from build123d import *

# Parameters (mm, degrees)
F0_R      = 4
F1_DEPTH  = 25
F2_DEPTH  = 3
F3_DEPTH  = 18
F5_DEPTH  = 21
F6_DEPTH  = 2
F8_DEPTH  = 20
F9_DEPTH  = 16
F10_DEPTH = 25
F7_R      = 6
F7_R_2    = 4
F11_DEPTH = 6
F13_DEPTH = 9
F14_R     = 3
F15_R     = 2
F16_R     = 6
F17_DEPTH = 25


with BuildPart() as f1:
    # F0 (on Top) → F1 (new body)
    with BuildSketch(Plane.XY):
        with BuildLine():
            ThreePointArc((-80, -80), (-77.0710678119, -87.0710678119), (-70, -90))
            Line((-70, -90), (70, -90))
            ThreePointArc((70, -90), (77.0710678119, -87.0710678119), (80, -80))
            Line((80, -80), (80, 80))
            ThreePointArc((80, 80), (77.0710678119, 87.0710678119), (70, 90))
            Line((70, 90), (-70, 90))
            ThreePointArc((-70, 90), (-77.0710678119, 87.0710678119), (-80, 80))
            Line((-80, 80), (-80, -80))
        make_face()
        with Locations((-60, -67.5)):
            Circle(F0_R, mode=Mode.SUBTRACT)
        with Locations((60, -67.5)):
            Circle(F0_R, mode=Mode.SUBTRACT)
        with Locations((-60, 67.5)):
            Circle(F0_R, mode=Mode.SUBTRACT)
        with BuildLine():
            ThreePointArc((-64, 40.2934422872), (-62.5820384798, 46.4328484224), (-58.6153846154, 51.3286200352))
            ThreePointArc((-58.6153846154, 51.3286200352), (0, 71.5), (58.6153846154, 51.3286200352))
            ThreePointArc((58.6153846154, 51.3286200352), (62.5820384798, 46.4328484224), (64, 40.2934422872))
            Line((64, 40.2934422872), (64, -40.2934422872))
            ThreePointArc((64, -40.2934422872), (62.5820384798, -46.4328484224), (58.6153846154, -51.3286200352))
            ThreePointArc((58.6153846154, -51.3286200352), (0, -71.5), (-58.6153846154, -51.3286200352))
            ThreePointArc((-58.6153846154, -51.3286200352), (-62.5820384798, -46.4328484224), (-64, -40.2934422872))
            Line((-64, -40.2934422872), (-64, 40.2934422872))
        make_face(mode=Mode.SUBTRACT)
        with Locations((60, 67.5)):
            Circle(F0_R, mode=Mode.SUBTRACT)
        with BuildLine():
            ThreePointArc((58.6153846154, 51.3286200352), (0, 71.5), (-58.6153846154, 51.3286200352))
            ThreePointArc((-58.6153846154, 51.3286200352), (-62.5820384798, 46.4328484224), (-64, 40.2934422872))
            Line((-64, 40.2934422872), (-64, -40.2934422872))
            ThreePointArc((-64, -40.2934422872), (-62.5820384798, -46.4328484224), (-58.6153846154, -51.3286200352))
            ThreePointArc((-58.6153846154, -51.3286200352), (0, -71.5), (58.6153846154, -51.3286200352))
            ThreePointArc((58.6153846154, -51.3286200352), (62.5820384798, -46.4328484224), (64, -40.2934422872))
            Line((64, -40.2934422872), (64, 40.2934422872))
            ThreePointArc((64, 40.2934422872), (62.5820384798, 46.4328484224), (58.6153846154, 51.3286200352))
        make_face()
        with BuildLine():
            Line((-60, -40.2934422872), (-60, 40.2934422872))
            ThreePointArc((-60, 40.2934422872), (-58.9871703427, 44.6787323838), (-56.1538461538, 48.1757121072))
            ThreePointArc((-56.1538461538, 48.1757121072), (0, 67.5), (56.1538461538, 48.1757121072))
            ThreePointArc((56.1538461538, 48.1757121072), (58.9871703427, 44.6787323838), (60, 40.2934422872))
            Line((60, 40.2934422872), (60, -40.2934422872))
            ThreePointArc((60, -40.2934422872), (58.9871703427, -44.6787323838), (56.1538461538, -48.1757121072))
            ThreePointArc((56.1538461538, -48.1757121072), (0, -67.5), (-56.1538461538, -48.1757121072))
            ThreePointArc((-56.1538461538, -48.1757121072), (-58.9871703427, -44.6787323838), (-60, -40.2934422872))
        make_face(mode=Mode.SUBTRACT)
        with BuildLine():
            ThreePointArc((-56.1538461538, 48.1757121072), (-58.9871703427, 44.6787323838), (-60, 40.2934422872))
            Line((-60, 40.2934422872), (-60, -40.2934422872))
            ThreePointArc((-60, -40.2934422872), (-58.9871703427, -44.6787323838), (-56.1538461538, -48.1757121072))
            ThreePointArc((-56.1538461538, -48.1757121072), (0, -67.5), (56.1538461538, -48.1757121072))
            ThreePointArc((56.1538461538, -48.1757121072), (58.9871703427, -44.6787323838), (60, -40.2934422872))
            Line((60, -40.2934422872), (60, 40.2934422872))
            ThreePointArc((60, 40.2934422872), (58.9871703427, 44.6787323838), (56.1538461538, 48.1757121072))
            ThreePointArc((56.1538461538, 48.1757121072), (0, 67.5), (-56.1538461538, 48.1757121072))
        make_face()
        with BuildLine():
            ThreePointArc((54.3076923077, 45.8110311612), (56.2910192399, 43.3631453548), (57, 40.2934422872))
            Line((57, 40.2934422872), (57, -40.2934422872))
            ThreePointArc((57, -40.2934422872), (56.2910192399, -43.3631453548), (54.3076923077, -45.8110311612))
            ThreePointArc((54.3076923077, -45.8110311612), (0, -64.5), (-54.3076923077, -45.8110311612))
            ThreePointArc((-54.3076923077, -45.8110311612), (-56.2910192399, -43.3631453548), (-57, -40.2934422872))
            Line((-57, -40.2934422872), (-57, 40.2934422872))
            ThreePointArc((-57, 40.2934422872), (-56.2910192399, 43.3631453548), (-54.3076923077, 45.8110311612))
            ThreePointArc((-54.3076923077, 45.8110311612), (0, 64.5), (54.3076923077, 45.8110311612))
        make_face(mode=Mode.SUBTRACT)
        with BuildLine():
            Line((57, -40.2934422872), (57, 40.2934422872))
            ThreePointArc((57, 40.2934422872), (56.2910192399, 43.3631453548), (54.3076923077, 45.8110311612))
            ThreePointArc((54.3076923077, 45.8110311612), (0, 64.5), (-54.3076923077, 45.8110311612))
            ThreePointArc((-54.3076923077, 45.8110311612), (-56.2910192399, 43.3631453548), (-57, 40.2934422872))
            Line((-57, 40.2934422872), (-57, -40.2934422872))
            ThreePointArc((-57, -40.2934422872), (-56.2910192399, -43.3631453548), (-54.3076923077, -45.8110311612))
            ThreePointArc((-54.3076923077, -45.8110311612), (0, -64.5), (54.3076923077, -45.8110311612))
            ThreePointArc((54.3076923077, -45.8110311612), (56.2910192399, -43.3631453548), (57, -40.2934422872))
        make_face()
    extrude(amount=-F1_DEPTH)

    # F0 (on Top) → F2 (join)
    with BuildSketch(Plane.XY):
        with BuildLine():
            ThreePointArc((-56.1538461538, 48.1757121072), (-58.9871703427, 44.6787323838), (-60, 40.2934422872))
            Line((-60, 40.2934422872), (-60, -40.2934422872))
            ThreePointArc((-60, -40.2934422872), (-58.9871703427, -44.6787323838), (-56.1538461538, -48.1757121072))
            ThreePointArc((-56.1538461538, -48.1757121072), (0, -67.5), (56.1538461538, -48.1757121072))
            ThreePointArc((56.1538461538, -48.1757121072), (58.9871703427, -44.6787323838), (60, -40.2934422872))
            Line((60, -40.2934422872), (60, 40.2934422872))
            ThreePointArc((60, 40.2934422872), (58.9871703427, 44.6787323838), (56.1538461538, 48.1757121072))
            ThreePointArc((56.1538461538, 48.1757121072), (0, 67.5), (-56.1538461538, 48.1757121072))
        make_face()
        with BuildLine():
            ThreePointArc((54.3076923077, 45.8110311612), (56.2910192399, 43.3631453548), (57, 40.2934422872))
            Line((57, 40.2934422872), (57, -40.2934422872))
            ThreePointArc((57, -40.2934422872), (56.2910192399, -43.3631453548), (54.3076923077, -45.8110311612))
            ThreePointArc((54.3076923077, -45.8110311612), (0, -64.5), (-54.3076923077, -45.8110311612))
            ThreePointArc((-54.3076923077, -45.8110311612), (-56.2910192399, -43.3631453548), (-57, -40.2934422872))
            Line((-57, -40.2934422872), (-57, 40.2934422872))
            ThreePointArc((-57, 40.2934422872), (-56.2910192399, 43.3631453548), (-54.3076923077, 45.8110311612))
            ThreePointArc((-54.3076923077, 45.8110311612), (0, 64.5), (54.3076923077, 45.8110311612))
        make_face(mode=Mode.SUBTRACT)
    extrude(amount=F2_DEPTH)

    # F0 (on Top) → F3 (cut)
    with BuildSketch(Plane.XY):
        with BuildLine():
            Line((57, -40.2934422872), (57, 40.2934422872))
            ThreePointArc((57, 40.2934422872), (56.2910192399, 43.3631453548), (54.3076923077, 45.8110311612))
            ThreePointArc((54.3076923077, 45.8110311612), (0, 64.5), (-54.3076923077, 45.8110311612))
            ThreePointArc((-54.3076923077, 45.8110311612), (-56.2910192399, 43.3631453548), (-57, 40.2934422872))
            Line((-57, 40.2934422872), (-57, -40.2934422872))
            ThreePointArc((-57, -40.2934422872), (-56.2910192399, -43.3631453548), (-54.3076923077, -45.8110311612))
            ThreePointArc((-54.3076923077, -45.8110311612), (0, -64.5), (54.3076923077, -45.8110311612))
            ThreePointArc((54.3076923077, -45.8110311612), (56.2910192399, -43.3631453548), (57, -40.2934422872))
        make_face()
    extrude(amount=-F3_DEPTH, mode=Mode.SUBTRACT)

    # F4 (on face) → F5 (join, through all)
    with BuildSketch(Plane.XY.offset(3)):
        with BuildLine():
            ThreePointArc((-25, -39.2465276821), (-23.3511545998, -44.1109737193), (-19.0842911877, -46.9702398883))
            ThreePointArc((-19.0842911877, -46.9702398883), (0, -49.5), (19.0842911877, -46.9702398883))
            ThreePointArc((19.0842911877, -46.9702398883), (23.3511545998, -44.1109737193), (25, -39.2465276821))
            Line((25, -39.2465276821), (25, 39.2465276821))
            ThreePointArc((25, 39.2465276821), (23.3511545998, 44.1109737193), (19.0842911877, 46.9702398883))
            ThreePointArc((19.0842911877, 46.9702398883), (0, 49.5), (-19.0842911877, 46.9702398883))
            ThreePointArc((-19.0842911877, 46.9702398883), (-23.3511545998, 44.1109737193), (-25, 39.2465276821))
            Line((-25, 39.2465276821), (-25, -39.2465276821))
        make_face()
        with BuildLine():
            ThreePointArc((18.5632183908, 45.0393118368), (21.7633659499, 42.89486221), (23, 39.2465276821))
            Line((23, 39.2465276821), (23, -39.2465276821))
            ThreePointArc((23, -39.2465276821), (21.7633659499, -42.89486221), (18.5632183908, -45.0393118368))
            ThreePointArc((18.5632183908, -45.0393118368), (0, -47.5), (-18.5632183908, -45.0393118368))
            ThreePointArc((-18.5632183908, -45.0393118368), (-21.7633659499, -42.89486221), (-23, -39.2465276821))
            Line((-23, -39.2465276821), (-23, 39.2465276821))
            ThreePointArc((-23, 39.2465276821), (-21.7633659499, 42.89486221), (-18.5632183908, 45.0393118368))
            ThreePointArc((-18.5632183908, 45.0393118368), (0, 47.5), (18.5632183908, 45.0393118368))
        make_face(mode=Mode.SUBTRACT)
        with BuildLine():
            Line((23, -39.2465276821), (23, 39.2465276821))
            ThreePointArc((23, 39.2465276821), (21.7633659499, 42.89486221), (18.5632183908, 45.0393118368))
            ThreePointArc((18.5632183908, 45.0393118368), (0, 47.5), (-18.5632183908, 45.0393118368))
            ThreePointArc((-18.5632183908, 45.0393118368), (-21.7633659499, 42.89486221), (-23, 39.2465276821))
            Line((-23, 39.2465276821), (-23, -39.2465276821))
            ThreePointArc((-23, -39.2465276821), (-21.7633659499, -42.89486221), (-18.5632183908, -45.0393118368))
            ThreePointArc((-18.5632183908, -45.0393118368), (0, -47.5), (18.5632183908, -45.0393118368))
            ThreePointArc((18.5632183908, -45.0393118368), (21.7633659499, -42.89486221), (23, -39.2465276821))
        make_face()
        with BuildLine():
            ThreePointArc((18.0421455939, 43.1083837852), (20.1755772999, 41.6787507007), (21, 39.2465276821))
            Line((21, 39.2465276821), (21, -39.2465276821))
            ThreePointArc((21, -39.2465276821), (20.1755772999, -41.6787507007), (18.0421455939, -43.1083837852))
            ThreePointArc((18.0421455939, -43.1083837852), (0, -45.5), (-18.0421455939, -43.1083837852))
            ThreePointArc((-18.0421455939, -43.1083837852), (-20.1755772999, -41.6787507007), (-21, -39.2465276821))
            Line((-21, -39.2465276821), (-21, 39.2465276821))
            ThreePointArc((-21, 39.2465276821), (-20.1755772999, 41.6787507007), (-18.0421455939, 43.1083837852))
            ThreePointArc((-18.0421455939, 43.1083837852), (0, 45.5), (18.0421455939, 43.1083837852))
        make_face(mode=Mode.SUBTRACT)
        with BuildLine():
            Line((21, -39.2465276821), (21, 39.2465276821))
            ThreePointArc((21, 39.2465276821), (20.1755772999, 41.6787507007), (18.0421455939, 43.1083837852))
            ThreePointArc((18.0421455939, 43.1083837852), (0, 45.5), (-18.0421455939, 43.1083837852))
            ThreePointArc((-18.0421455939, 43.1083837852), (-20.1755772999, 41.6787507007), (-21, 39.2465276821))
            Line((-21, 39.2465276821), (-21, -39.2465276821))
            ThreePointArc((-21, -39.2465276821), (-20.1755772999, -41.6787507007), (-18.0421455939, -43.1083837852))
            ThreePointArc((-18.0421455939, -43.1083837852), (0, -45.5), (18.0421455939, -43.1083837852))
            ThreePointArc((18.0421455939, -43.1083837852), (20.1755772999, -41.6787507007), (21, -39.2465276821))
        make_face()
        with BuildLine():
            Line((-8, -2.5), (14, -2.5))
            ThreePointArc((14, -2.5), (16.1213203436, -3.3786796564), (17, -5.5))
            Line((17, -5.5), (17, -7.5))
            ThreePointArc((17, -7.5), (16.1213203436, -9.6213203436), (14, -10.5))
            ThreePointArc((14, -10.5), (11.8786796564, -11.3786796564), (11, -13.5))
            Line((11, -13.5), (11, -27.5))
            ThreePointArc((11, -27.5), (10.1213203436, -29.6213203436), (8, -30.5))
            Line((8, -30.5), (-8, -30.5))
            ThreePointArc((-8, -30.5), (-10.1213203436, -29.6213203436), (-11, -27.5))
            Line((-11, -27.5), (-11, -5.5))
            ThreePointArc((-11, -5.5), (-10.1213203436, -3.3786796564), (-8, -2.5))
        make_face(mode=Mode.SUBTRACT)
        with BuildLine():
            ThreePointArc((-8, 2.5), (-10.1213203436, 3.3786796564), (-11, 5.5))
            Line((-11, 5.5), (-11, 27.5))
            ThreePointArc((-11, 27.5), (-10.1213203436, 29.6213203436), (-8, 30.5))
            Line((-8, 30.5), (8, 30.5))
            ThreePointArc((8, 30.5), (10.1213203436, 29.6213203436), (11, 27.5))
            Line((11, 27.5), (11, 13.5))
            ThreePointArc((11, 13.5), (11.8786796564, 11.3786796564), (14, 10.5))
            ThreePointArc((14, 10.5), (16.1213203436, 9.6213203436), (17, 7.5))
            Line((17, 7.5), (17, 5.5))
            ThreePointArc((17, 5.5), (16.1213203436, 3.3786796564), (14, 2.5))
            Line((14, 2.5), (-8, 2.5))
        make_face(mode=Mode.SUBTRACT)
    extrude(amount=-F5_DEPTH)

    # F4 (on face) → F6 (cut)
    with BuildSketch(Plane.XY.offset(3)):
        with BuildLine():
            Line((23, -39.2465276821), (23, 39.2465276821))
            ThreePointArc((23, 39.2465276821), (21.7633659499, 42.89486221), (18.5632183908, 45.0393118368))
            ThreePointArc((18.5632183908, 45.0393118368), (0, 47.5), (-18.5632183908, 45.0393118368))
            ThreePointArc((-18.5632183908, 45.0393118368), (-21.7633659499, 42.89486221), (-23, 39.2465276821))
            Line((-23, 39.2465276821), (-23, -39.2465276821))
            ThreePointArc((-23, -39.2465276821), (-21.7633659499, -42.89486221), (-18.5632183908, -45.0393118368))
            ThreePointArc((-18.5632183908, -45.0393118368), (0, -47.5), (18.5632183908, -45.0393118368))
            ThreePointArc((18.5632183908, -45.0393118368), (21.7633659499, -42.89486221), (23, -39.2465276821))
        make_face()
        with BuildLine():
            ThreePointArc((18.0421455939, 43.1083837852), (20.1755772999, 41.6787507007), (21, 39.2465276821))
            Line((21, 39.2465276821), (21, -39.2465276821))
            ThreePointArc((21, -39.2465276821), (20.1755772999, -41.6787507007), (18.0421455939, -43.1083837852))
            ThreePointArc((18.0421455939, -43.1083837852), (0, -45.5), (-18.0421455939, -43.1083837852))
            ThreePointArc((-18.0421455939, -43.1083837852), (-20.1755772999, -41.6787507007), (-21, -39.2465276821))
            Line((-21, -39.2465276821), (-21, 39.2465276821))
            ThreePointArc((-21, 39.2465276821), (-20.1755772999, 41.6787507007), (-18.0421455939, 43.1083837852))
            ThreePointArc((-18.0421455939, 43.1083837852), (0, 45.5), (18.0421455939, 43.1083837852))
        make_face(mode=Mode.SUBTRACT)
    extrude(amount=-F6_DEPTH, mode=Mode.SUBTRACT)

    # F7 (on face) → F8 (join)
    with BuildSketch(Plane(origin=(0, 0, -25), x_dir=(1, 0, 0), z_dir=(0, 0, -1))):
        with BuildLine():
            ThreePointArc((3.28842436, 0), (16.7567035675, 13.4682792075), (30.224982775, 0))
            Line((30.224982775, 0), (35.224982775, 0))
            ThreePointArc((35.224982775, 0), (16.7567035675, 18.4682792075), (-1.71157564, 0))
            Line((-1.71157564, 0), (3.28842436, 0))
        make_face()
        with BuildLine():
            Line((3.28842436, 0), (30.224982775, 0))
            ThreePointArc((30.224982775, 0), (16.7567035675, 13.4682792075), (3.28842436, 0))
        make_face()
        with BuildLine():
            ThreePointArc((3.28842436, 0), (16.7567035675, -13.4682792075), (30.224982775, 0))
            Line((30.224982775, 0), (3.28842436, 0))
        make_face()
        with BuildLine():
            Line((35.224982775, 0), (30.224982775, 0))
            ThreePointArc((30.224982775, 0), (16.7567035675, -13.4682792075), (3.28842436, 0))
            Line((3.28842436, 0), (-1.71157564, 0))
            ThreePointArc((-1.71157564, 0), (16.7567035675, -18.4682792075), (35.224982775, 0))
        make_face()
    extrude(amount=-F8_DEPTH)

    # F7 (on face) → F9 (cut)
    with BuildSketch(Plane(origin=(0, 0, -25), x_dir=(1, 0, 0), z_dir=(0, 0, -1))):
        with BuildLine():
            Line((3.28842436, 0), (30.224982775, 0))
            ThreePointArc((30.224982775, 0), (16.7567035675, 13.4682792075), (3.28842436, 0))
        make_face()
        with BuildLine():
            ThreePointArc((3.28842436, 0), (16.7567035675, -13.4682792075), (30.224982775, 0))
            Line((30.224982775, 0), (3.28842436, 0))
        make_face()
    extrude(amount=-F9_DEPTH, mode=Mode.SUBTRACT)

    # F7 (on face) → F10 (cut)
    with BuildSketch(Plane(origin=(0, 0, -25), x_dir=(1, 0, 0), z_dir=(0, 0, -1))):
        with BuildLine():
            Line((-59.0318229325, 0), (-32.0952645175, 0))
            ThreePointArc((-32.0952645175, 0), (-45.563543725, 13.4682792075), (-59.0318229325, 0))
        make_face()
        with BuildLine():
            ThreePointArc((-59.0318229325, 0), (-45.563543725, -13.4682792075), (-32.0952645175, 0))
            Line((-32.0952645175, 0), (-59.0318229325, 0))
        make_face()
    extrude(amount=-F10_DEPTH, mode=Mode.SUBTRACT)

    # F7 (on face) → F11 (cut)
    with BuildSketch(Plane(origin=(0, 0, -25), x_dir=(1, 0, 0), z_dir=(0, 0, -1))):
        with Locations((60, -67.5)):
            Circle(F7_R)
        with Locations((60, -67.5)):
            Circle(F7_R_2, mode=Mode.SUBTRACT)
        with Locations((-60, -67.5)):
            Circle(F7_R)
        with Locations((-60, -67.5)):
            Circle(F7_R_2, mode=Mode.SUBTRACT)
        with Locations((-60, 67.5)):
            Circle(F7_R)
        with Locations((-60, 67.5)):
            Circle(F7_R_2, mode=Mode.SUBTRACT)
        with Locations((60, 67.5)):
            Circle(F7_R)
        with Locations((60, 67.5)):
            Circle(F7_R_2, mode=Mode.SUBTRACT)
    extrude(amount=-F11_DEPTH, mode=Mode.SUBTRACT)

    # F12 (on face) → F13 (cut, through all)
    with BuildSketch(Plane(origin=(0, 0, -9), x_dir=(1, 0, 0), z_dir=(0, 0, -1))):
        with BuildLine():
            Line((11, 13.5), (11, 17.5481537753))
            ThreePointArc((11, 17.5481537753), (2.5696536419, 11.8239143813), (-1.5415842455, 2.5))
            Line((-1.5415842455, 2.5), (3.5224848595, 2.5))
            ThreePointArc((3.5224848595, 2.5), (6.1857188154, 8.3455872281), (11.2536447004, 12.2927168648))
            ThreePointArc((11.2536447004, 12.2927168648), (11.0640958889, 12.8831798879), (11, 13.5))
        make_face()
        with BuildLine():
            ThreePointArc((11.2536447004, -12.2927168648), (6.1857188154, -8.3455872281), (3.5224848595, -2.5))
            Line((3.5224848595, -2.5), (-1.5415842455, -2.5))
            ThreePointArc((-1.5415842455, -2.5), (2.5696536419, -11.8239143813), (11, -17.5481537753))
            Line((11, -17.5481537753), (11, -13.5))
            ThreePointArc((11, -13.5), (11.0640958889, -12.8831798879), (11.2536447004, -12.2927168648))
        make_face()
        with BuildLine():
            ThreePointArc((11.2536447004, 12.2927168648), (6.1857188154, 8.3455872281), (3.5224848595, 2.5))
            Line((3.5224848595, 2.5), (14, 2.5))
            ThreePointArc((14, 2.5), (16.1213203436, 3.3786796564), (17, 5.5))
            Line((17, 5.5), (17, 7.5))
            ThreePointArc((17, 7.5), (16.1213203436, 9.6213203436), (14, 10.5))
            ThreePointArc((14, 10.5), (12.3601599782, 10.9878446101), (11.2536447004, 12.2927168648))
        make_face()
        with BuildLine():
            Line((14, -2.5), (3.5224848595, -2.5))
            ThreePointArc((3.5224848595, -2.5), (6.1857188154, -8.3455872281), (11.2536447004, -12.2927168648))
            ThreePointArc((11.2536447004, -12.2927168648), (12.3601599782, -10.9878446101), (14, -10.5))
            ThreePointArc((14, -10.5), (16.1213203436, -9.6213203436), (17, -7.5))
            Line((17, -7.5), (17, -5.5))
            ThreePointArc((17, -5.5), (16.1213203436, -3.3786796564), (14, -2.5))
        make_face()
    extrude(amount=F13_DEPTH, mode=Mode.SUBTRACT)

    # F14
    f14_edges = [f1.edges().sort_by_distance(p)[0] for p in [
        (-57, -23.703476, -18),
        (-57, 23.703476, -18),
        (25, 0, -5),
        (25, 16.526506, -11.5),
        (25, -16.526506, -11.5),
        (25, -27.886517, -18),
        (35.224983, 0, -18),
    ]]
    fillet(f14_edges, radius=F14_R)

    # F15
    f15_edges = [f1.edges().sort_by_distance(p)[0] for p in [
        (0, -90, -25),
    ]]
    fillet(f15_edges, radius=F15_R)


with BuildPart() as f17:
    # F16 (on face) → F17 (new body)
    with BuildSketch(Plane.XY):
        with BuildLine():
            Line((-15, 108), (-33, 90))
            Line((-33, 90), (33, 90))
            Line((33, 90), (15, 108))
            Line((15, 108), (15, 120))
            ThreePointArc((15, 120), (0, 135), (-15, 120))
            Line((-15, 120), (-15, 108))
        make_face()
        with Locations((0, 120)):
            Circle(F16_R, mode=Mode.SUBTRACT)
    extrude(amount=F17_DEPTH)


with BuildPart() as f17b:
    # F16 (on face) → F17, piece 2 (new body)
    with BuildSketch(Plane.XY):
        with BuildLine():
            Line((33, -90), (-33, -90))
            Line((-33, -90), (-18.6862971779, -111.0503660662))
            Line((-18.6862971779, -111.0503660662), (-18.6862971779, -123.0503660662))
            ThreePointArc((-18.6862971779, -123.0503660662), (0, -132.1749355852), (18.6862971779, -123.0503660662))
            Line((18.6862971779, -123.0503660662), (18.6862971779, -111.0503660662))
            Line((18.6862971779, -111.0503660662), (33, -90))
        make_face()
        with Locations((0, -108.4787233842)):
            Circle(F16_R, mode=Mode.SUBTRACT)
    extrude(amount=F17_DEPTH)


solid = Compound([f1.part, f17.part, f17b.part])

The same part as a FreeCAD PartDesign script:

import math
import FreeCAD as App
import Part
import Sketcher

V = App.Vector


def edges_at(feature, points):
    """Names of the edges that pass closest to the given points."""
    edges = feature.Shape.Edges
    near = lambda p: min(range(len(edges)), key=lambda i: edges[i].distToShape(Part.Vertex(*p))[0])
    return sorted({f"Edge{near(p) + 1}" for p in points})

doc = App.newDocument("Part")
body = doc.addObject("PartDesign::Body", "Body")

# Sketch on XY plane
sketch1 = body.newObject("Sketcher::SketchObject", "Sketch")
sketch1.AttachmentSupport = (doc.getObject("XY_Plane"), [""])
sketch1.MapMode = "FlatFace"
sketch1.addGeometry([
    Part.ArcOfCircle(Part.Circle(V(-70, -80, 0), V(0, 0, 1), 10), math.radians(180), math.radians(270)),  # 0
    Part.LineSegment(V(-70, -90, 0), V(70, -90, 0)),  # 1
    Part.ArcOfCircle(Part.Circle(V(70, -80, 0), V(0, 0, 1), 10), math.radians(-90), math.radians(0)),  # 2
    Part.LineSegment(V(80, -80, 0), V(80, 80, 0)),  # 3
    Part.ArcOfCircle(Part.Circle(V(70, 80, 0), V(0, 0, 1), 10), math.radians(0), math.radians(90)),  # 4
    Part.LineSegment(V(70, 90, 0), V(-70, 90, 0)),  # 5
    Part.ArcOfCircle(Part.Circle(V(-70, 80, 0), V(0, 0, 1), 10), math.radians(90), math.radians(180)),  # 6
    Part.LineSegment(V(-80, 80, 0), V(-80, -80, 0)),  # 7
    Part.Circle(V(-60, -67.5, 0), V(0, 0, 1), 4),  # 8
    Part.Circle(V(60, -67.5, 0), V(0, 0, 1), 4),  # 9
    Part.Circle(V(-60, 67.5, 0), V(0, 0, 1), 4),  # 10
    Part.Circle(V(60, 67.5, 0), V(0, 0, 1), 4),  # 11
], False)
sketch1.addConstraint([
    Sketcher.Constraint("Tangent", 0, 2, 1, 1),
    Sketcher.Constraint("Tangent", 1, 2, 2, 1),
    Sketcher.Constraint("Tangent", 2, 2, 3, 1),
    Sketcher.Constraint("Tangent", 3, 2, 4, 1),
    Sketcher.Constraint("Tangent", 4, 2, 5, 1),
    Sketcher.Constraint("Tangent", 5, 2, 6, 1),
    Sketcher.Constraint("Tangent", 6, 2, 7, 1),
    Sketcher.Constraint("Tangent", 7, 2, 0, 1),
    Sketcher.Constraint("Horizontal", 1),
    Sketcher.Constraint("Vertical", 3),
    Sketcher.Constraint("Horizontal", 5),
    Sketcher.Constraint("Vertical", 7),
    Sketcher.Constraint("Equal", 0, 2),
    Sketcher.Constraint("Equal", 2, 4),
    Sketcher.Constraint("Equal", 4, 6),
    Sketcher.Constraint("Equal", 8, 9),
    Sketcher.Constraint("Equal", 9, 10),
    Sketcher.Constraint("Equal", 10, 11),
    Sketcher.Constraint("Symmetric", 0, 3, 4, 3, -1, 1),
    Sketcher.Constraint("Symmetric", 9, 3, 10, 3, -1, 1),
    Sketcher.Constraint("Symmetric", 8, 3, 11, 3, -1, 1),
    Sketcher.Constraint("Symmetric", 8, 3, 9, 3, -2),
    Sketcher.Constraint("Diameter", 8, 8.0),
    Sketcher.Constraint("Radius", 0, 10.0),
    Sketcher.Constraint("DistanceX", 1, 1, 1, 2, 140.0),
    Sketcher.Constraint("DistanceY", 3, 1, 3, 2, 160.0),
    Sketcher.Constraint("DistanceX", 8, 3, -1, 1, 60.0),
    Sketcher.Constraint("DistanceY", 8, 3, 10, 3, 135.0),
])
pad1 = body.newObject("PartDesign::Pad", "Pad")
pad1.Profile = sketch1
pad1.Length = 25
pad1.Reversed = True

# Sketch on XY plane
sketch2 = body.newObject("Sketcher::SketchObject", "Sketch001")
sketch2.AttachmentSupport = (doc.getObject("XY_Plane"), [""])
sketch2.MapMode = "FlatFace"
sketch2.addGeometry([
    Part.ArcOfCircle(Part.Circle(V(-50, 40, 0), V(0, 0, 1), 10), math.radians(128), math.radians(180)),  # 0
    Part.LineSegment(V(-60, 40, 0), V(-60, -40, 0)),  # 1
    Part.ArcOfCircle(Part.Circle(V(-50, -40, 0), V(0, 0, 1), 10), math.radians(180), math.radians(232)),  # 2
    Part.ArcOfCircle(Part.Circle(V(0, 24, 0), V(0, 0, 1), 91), math.radians(-128), math.radians(-52)),  # 3
    Part.ArcOfCircle(Part.Circle(V(50, -40, 0), V(0, 0, 1), 10), math.radians(-52), math.radians(0)),  # 4
    Part.LineSegment(V(60, -40, 0), V(60, 40, 0)),  # 5
    Part.ArcOfCircle(Part.Circle(V(50, 40, 0), V(0, 0, 1), 10), math.radians(0), math.radians(52)),  # 6
    Part.ArcOfCircle(Part.Circle(V(0, -24, 0), V(0, 0, 1), 91), math.radians(52), math.radians(128)),  # 7
    Part.ArcOfCircle(Part.Circle(V(0, -24, 0), V(0, 0, 1), 88), math.radians(52), math.radians(128)),  # 8
    Part.ArcOfCircle(Part.Circle(V(50, 40, 0), V(0, 0, 1), 7), math.radians(0), math.radians(52)),  # 9
    Part.LineSegment(V(57, 40, 0), V(57, -40, 0)),  # 10
    Part.ArcOfCircle(Part.Circle(V(50, -40, 0), V(0, 0, 1), 7), math.radians(-52), math.radians(0)),  # 11
    Part.ArcOfCircle(Part.Circle(V(0, 24, 0), V(0, 0, 1), 88), math.radians(-128), math.radians(-52)),  # 12
    Part.ArcOfCircle(Part.Circle(V(-50, -40, 0), V(0, 0, 1), 7), math.radians(180), math.radians(232)),  # 13
    Part.LineSegment(V(-57, -40, 0), V(-57, 40, 0)),  # 14
    Part.ArcOfCircle(Part.Circle(V(-50, 40, 0), V(0, 0, 1), 7), math.radians(128), math.radians(180)),  # 15
], False)
sketch2.addConstraint([
    Sketcher.Constraint("Tangent", 0, 2, 1, 1),
    Sketcher.Constraint("Tangent", 1, 2, 2, 1),
    Sketcher.Constraint("Tangent", 2, 2, 3, 1),
    Sketcher.Constraint("Tangent", 3, 2, 4, 1),
    Sketcher.Constraint("Tangent", 4, 2, 5, 1),
    Sketcher.Constraint("Tangent", 5, 2, 6, 1),
    Sketcher.Constraint("Tangent", 6, 2, 7, 1),
    Sketcher.Constraint("Tangent", 7, 2, 0, 1),
    Sketcher.Constraint("Tangent", 8, 1, 9, 2),
    Sketcher.Constraint("Tangent", 9, 1, 10, 1),
    Sketcher.Constraint("Tangent", 10, 2, 11, 2),
    Sketcher.Constraint("Tangent", 11, 1, 12, 2),
    Sketcher.Constraint("Tangent", 12, 1, 13, 2),
    Sketcher.Constraint("Tangent", 13, 1, 14, 1),
    Sketcher.Constraint("Tangent", 14, 2, 15, 2),
    Sketcher.Constraint("Tangent", 15, 1, 8, 2),
    Sketcher.Constraint("Vertical", 1),
    Sketcher.Constraint("Vertical", 5),
    Sketcher.Constraint("Vertical", 10),
    Sketcher.Constraint("Vertical", 14),
    Sketcher.Constraint("Coincident", 8, 3, 7, 3),
    Sketcher.Constraint("Coincident", 9, 3, 6, 3),
    Sketcher.Constraint("Coincident", 11, 3, 4, 3),
    Sketcher.Constraint("Coincident", 12, 3, 3, 3),
    Sketcher.Constraint("Coincident", 13, 3, 2, 3),
    Sketcher.Constraint("Equal", 0, 2),
    Sketcher.Constraint("Equal", 2, 4),
    Sketcher.Constraint("Equal", 4, 6),
    Sketcher.Constraint("Equal", 3, 7),
    Sketcher.Constraint("Equal", 13, 15),
    Sketcher.Constraint("Symmetric", 0, 3, 4, 3, -1, 1),
    Sketcher.Constraint("Symmetric", 3, 3, 7, 3, -1),
    Sketcher.Constraint("Radius", 0, 10.0),
    Sketcher.Constraint("Radius", 9, 7.0),
    Sketcher.Constraint("Radius", 3, 91.25),
    Sketcher.Constraint("DistanceX", 0, 3, -1, 1, 50.0),
    Sketcher.Constraint("DistanceY", 7, 3, 3, 3, 47.5),
])
pad2 = body.newObject("PartDesign::Pad", "Pad001")
pad2.Profile = sketch2
pad2.Length = 3

# Sketch on XY plane
sketch3 = body.newObject("Sketcher::SketchObject", "Sketch002")
sketch3.AttachmentSupport = (doc.getObject("XY_Plane"), [""])
sketch3.MapMode = "FlatFace"
sketch3.addGeometry([
    Part.LineSegment(V(57, -40, 0), V(57, 40, 0)),  # 0
    Part.ArcOfCircle(Part.Circle(V(50, 40, 0), V(0, 0, 1), 7), math.radians(0), math.radians(52)),  # 1
    Part.ArcOfCircle(Part.Circle(V(0, -24, 0), V(0, 0, 1), 88), math.radians(52), math.radians(128)),  # 2
    Part.ArcOfCircle(Part.Circle(V(-50, 40, 0), V(0, 0, 1), 7), math.radians(128), math.radians(180)),  # 3
    Part.LineSegment(V(-57, 40, 0), V(-57, -40, 0)),  # 4
    Part.ArcOfCircle(Part.Circle(V(-50, -40, 0), V(0, 0, 1), 7), math.radians(180), math.radians(232)),  # 5
    Part.ArcOfCircle(Part.Circle(V(0, 24, 0), V(0, 0, 1), 88), math.radians(-128), math.radians(-52)),  # 6
    Part.ArcOfCircle(Part.Circle(V(50, -40, 0), V(0, 0, 1), 7), math.radians(-52), math.radians(0)),  # 7
], False)
sketch3.addConstraint([
    Sketcher.Constraint("Tangent", 0, 2, 1, 1),
    Sketcher.Constraint("Tangent", 1, 2, 2, 1),
    Sketcher.Constraint("Tangent", 2, 2, 3, 1),
    Sketcher.Constraint("Tangent", 3, 2, 4, 1),
    Sketcher.Constraint("Tangent", 4, 2, 5, 1),
    Sketcher.Constraint("Tangent", 5, 2, 6, 1),
    Sketcher.Constraint("Tangent", 6, 2, 7, 1),
    Sketcher.Constraint("Tangent", 7, 2, 0, 1),
    Sketcher.Constraint("Vertical", 0),
    Sketcher.Constraint("Vertical", 4),
    Sketcher.Constraint("Equal", 1, 3),
    Sketcher.Constraint("Equal", 3, 5),
    Sketcher.Constraint("Equal", 2, 6),
    Sketcher.Constraint("Equal", 5, 7),
    Sketcher.Constraint("Symmetric", 1, 3, 5, 3, -1, 1),
    Sketcher.Constraint("Symmetric", 2, 3, 6, 3, -1),
    Sketcher.Constraint("Radius", 1, 7.0),
    Sketcher.Constraint("Radius", 2, 88.25),
    Sketcher.Constraint("DistanceX", -1, 1, 1, 3, 50.0),
    Sketcher.Constraint("DistanceY", 2, 3, 6, 3, 47.5),
])
pocket1 = body.newObject("PartDesign::Pocket", "Pocket")
pocket1.Profile = sketch3
pocket1.Length = 18

# Sketch on XY plane
sketch4 = body.newObject("Sketcher::SketchObject", "Sketch003")
sketch4.AttachmentSupport = (doc.getObject("XY_Plane"), [""])
sketch4.MapMode = "FlatFace"
sketch4.AttachmentOffset = App.Placement(V(0, 0, 3), App.Rotation())
sketch4.addGeometry([
    Part.ArcOfCircle(Part.Circle(V(-17, -39.2, 0), V(0, 0, 1), 8), math.radians(180), math.radians(255)),  # 0
    Part.ArcOfCircle(Part.Circle(V(0, 23.7, 0), V(0, 0, 1), 73.2), math.radians(-105), math.radians(-75)),  # 1
    Part.ArcOfCircle(Part.Circle(V(17, -39.2, 0), V(0, 0, 1), 8), math.radians(-75), math.radians(0)),  # 2
    Part.LineSegment(V(25, -39.2, 0), V(25, 39.2, 0)),  # 3
    Part.ArcOfCircle(Part.Circle(V(17, 39.2, 0), V(0, 0, 1), 8), math.radians(0), math.radians(75)),  # 4
    Part.ArcOfCircle(Part.Circle(V(0, -23.7, 0), V(0, 0, 1), 73.2), math.radians(75), math.radians(105)),  # 5
    Part.ArcOfCircle(Part.Circle(V(-17, 39.2, 0), V(0, 0, 1), 8), math.radians(105), math.radians(180)),  # 6
    Part.LineSegment(V(-25, 39.2, 0), V(-25, -39.2, 0)),  # 7
    Part.ArcOfCircle(Part.Circle(V(-8, -5.5, 0), V(0, 0, 1), 3), math.radians(90), math.radians(180)),  # 8
    Part.LineSegment(V(-8, -2.5, 0), V(14, -2.5, 0)),  # 9
    Part.ArcOfCircle(Part.Circle(V(14, -5.5, 0), V(0, 0, 1), 3), math.radians(0), math.radians(90)),  # 10
    Part.LineSegment(V(17, -5.5, 0), V(17, -7.5, 0)),  # 11
    Part.ArcOfCircle(Part.Circle(V(14, -7.5, 0), V(0, 0, 1), 3), math.radians(-90), math.radians(0)),  # 12
    Part.ArcOfCircle(Part.Circle(V(14, -13.5, 0), V(0, 0, 1), 3), math.radians(90), math.radians(180)),  # 13
    Part.LineSegment(V(11, -13.5, 0), V(11, -27.5, 0)),  # 14
    Part.ArcOfCircle(Part.Circle(V(8, -27.5, 0), V(0, 0, 1), 3), math.radians(-90), math.radians(0)),  # 15
    Part.LineSegment(V(8, -30.5, 0), V(-8, -30.5, 0)),  # 16
    Part.ArcOfCircle(Part.Circle(V(-8, -27.5, 0), V(0, 0, 1), 3), math.radians(180), math.radians(270)),  # 17
    Part.LineSegment(V(-11, -27.5, 0), V(-11, -5.5, 0)),  # 18
    Part.LineSegment(V(14, 2.5, 0), V(-8, 2.5, 0)),  # 19
    Part.ArcOfCircle(Part.Circle(V(-8, 5.5, 0), V(0, 0, 1), 3), math.radians(180), math.radians(270)),  # 20
    Part.LineSegment(V(-11, 5.5, 0), V(-11, 27.5, 0)),  # 21
    Part.ArcOfCircle(Part.Circle(V(-8, 27.5, 0), V(0, 0, 1), 3), math.radians(90), math.radians(180)),  # 22
    Part.LineSegment(V(-8, 30.5, 0), V(8, 30.5, 0)),  # 23
    Part.ArcOfCircle(Part.Circle(V(8, 27.5, 0), V(0, 0, 1), 3), math.radians(0), math.radians(90)),  # 24
    Part.LineSegment(V(11, 27.5, 0), V(11, 13.5, 0)),  # 25
    Part.ArcOfCircle(Part.Circle(V(14, 13.5, 0), V(0, 0, 1), 3), math.radians(180), math.radians(270)),  # 26
    Part.ArcOfCircle(Part.Circle(V(14, 7.5, 0), V(0, 0, 1), 3), math.radians(0), math.radians(90)),  # 27
    Part.LineSegment(V(17, 7.5, 0), V(17, 5.5, 0)),  # 28
    Part.ArcOfCircle(Part.Circle(V(14, 5.5, 0), V(0, 0, 1), 3), math.radians(-90), math.radians(0)),  # 29
], False)
sketch4.addConstraint([
    Sketcher.Constraint("Tangent", 0, 2, 1, 1),
    Sketcher.Constraint("Tangent", 1, 2, 2, 1),
    Sketcher.Constraint("Tangent", 2, 2, 3, 1),
    Sketcher.Constraint("Tangent", 3, 2, 4, 1),
    Sketcher.Constraint("Tangent", 4, 2, 5, 1),
    Sketcher.Constraint("Tangent", 5, 2, 6, 1),
    Sketcher.Constraint("Tangent", 6, 2, 7, 1),
    Sketcher.Constraint("Tangent", 7, 2, 0, 1),
    Sketcher.Constraint("Tangent", 8, 1, 9, 1),
    Sketcher.Constraint("Tangent", 9, 2, 10, 2),
    Sketcher.Constraint("Tangent", 10, 1, 11, 1),
    Sketcher.Constraint("Tangent", 11, 2, 12, 2),
    Sketcher.Constraint("Tangent", 12, 1, 13, 1),
    Sketcher.Constraint("Tangent", 13, 2, 14, 1),
    Sketcher.Constraint("Tangent", 14, 2, 15, 2),
    Sketcher.Constraint("Tangent", 15, 1, 16, 1),
    Sketcher.Constraint("Tangent", 16, 2, 17, 2),
    Sketcher.Constraint("Tangent", 17, 1, 18, 1),
    Sketcher.Constraint("Tangent", 18, 2, 8, 2),
    Sketcher.Constraint("Tangent", 19, 2, 20, 2),
    Sketcher.Constraint("Tangent", 20, 1, 21, 1),
    Sketcher.Constraint("Tangent", 21, 2, 22, 2),
    Sketcher.Constraint("Tangent", 22, 1, 23, 1),
    Sketcher.Constraint("Tangent", 23, 2, 24, 2),
    Sketcher.Constraint("Tangent", 24, 1, 25, 1),
    Sketcher.Constraint("Tangent", 25, 2, 26, 1),
    Sketcher.Constraint("Tangent", 26, 2, 27, 2),
    Sketcher.Constraint("Tangent", 27, 1, 28, 1),
    Sketcher.Constraint("Tangent", 28, 2, 29, 2),
    Sketcher.Constraint("Tangent", 29, 1, 19, 1),
    Sketcher.Constraint("Vertical", 3),
    Sketcher.Constraint("Vertical", 7),
    Sketcher.Constraint("Horizontal", 9),
    Sketcher.Constraint("Vertical", 11),
    Sketcher.Constraint("Vertical", 14),
    Sketcher.Constraint("Horizontal", 16),
    Sketcher.Constraint("Vertical", 18),
    Sketcher.Constraint("Horizontal", 19),
    Sketcher.Constraint("Vertical", 21),
    Sketcher.Constraint("Horizontal", 23),
    Sketcher.Constraint("Vertical", 25),
    Sketcher.Constraint("Vertical", 28),
    Sketcher.Constraint("Equal", 0, 2),
    Sketcher.Constraint("Equal", 2, 4),
    Sketcher.Constraint("Equal", 1, 5),
    Sketcher.Constraint("Equal", 4, 6),
    Sketcher.Constraint("Equal", 8, 10),
    Sketcher.Constraint("Equal", 10, 12),
    Sketcher.Constraint("Equal", 12, 13),
    Sketcher.Constraint("Equal", 13, 15),
    Sketcher.Constraint("Equal", 15, 17),
    Sketcher.Constraint("Equal", 17, 20),
    Sketcher.Constraint("Equal", 20, 22),
    Sketcher.Constraint("Equal", 22, 24),
    Sketcher.Constraint("Equal", 24, 26),
    Sketcher.Constraint("Equal", 26, 27),
    Sketcher.Constraint("Equal", 27, 29),
    Sketcher.Constraint("Symmetric", 0, 3, 4, 3, -1, 1),
    Sketcher.Constraint("Symmetric", 15, 3, 22, 3, -1, 1),
    Sketcher.Constraint("Symmetric", 1, 3, 5, 3, -1),
    Sketcher.Constraint("Symmetric", 8, 3, 20, 3, -1),
    Sketcher.Constraint("Symmetric", 13, 3, 26, 3, -1),
    Sketcher.Constraint("Vertical", 12, 3, 13, 3),
    Sketcher.Constraint("Vertical", 26, 3, 27, 3),
    Sketcher.Constraint("Vertical", 4, 3, 10, 1),
    Sketcher.Constraint("Equal", 19, 18),
    Sketcher.Constraint("Radius", 0, 8.0),
    Sketcher.Constraint("Radius", 8, 3.0),
    Sketcher.Constraint("DistanceX", 9, 1, 9, 2, 22.0),
    Sketcher.Constraint("DistanceY", 11, 2, 11, 1, 2.0),
    Sketcher.Constraint("Radius", 1, 73.25),
    Sketcher.Constraint("DistanceY", 8, 3, 20, 3, 11.0),
    Sketcher.Constraint("DistanceY", 5, 3, 1, 3, 47.5),
])
pad3 = body.newObject("PartDesign::Pad", "Pad002")
pad3.Profile = sketch4
pad3.Type = "UpToLast"
pad3.Reversed = True

# Sketch on XY plane
sketch5 = body.newObject("Sketcher::SketchObject", "Sketch004")
sketch5.AttachmentSupport = (doc.getObject("XY_Plane"), [""])
sketch5.MapMode = "FlatFace"
sketch5.AttachmentOffset = App.Placement(V(0, 0, 3), App.Rotation())
sketch5.addGeometry([
    Part.LineSegment(V(23, -39.2, 0), V(23, 39.2, 0)),  # 0
    Part.ArcOfCircle(Part.Circle(V(17, 39.2, 0), V(0, 0, 1), 6), math.radians(0), math.radians(75)),  # 1
    Part.ArcOfCircle(Part.Circle(V(0, -23.8, 0), V(0, 0, 1), 71.3), math.radians(75), math.radians(105)),  # 2
    Part.ArcOfCircle(Part.Circle(V(-17, 39.2, 0), V(0, 0, 1), 6), math.radians(105), math.radians(180)),  # 3
    Part.LineSegment(V(-23, 39.2, 0), V(-23, -39.2, 0)),  # 4
    Part.ArcOfCircle(Part.Circle(V(-17, -39.2, 0), V(0, 0, 1), 6), math.radians(180), math.radians(255)),  # 5
    Part.ArcOfCircle(Part.Circle(V(0, 23.8, 0), V(0, 0, 1), 71.3), math.radians(-105), math.radians(-75)),  # 6
    Part.ArcOfCircle(Part.Circle(V(17, -39.2, 0), V(0, 0, 1), 6), math.radians(-75), math.radians(0)),  # 7
    Part.ArcOfCircle(Part.Circle(V(0, -23.8, 0), V(0, 0, 1), 69.2), math.radians(75), math.radians(105)),  # 8
    Part.ArcOfCircle(Part.Circle(V(17, 39.2, 0), V(0, 0, 1), 4), math.radians(0), math.radians(75)),  # 9
    Part.LineSegment(V(21, 39.2, 0), V(21, -39.2, 0)),  # 10
    Part.ArcOfCircle(Part.Circle(V(17, -39.2, 0), V(0, 0, 1), 4), math.radians(-75), math.radians(0)),  # 11
    Part.ArcOfCircle(Part.Circle(V(0, 23.8, 0), V(0, 0, 1), 69.2), math.radians(-105), math.radians(-75)),  # 12
    Part.ArcOfCircle(Part.Circle(V(-17, -39.2, 0), V(0, 0, 1), 4), math.radians(180), math.radians(255)),  # 13
    Part.LineSegment(V(-21, -39.2, 0), V(-21, 39.2, 0)),  # 14
    Part.ArcOfCircle(Part.Circle(V(-17, 39.2, 0), V(0, 0, 1), 4), math.radians(105), math.radians(180)),  # 15
], False)
sketch5.addConstraint([
    Sketcher.Constraint("Tangent", 0, 2, 1, 1),
    Sketcher.Constraint("Tangent", 1, 2, 2, 1),
    Sketcher.Constraint("Tangent", 2, 2, 3, 1),
    Sketcher.Constraint("Tangent", 3, 2, 4, 1),
    Sketcher.Constraint("Tangent", 4, 2, 5, 1),
    Sketcher.Constraint("Tangent", 5, 2, 6, 1),
    Sketcher.Constraint("Tangent", 6, 2, 7, 1),
    Sketcher.Constraint("Tangent", 7, 2, 0, 1),
    Sketcher.Constraint("Tangent", 8, 1, 9, 2),
    Sketcher.Constraint("Tangent", 9, 1, 10, 1),
    Sketcher.Constraint("Tangent", 10, 2, 11, 2),
    Sketcher.Constraint("Tangent", 11, 1, 12, 2),
    Sketcher.Constraint("Tangent", 12, 1, 13, 2),
    Sketcher.Constraint("Tangent", 13, 1, 14, 1),
    Sketcher.Constraint("Tangent", 14, 2, 15, 2),
    Sketcher.Constraint("Tangent", 15, 1, 8, 2),
    Sketcher.Constraint("Vertical", 0),
    Sketcher.Constraint("Vertical", 4),
    Sketcher.Constraint("Vertical", 10),
    Sketcher.Constraint("Vertical", 14),
    Sketcher.Constraint("Coincident", 8, 3, 2, 3),
    Sketcher.Constraint("Coincident", 9, 3, 1, 3),
    Sketcher.Constraint("Coincident", 11, 3, 7, 3),
    Sketcher.Constraint("Coincident", 12, 3, 6, 3),
    Sketcher.Constraint("Coincident", 13, 3, 5, 3),
    Sketcher.Constraint("Equal", 1, 3),
    Sketcher.Constraint("Equal", 3, 5),
    Sketcher.Constraint("Equal", 2, 6),
    Sketcher.Constraint("Equal", 5, 7),
    Sketcher.Constraint("Equal", 13, 15),
    Sketcher.Constraint("Symmetric", 1, 3, 5, 3, -1, 1),
    Sketcher.Constraint("Symmetric", 2, 3, 6, 3, -1),
    Sketcher.Constraint("Radius", 1, 6.0),
    Sketcher.Constraint("Radius", 9, 4.0),
    Sketcher.Constraint("Radius", 2, 71.25),
    Sketcher.Constraint("DistanceX", -1, 1, 1, 3, 17.0),
    Sketcher.Constraint("DistanceY", 2, 3, 6, 3, 47.5),
])
pocket2 = body.newObject("PartDesign::Pocket", "Pocket001")
pocket2.Profile = sketch5
pocket2.Length = 2

# Sketch on XY plane
sketch6 = body.newObject("Sketcher::SketchObject", "Sketch005")
sketch6.AttachmentSupport = (doc.getObject("XY_Plane"), [""])
sketch6.MapMode = "FlatFace"
sketch6.AttachmentOffset = App.Placement(V(0, 0, -25), App.Rotation())
sketch6.addGeometry(Part.Circle(V(17, 0, 0), V(0, 0, 1), 18), False)
sketch6.addConstraint([
    Sketcher.Constraint("PointOnObject", 0, 3, -1),
    Sketcher.Constraint("Diameter", 0, 36.936558),
    Sketcher.Constraint("DistanceX", -1, 1, 0, 3, 16.756704),
])
pad4 = body.newObject("PartDesign::Pad", "Pad003")
pad4.Profile = sketch6
pad4.Length = 20

# Sketch on XY plane
sketch7 = body.newObject("Sketcher::SketchObject", "Sketch006")
sketch7.AttachmentSupport = (doc.getObject("XY_Plane"), [""])
sketch7.MapMode = "FlatFace"
sketch7.AttachmentOffset = App.Placement(V(0, 0, -25), App.Rotation())
sketch7.addGeometry(Part.Circle(V(17, 0, 0), V(0, 0, 1), 13), False)
sketch7.addConstraint([
    Sketcher.Constraint("PointOnObject", 0, 3, -1),
    Sketcher.Constraint("Diameter", 0, 26.936558),
    Sketcher.Constraint("DistanceX", -1, 1, 0, 3, 16.756704),
])
pocket3 = body.newObject("PartDesign::Pocket", "Pocket002")
pocket3.Profile = sketch7
pocket3.Length = 16
pocket3.Reversed = True

# Sketch on XY plane
sketch8 = body.newObject("Sketcher::SketchObject", "Sketch007")
sketch8.AttachmentSupport = (doc.getObject("XY_Plane"), [""])
sketch8.MapMode = "FlatFace"
sketch8.AttachmentOffset = App.Placement(V(0, 0, -25), App.Rotation())
sketch8.addGeometry(Part.Circle(V(-46, 0, 0), V(0, 0, 1), 13), False)
sketch8.addConstraint([
    Sketcher.Constraint("PointOnObject", 0, 3, -1),
    Sketcher.Constraint("Diameter", 0, 26.936558),
    Sketcher.Constraint("DistanceX", 0, 3, -1, 1, 45.563544),
])
pocket4 = body.newObject("PartDesign::Pocket", "Pocket003")
pocket4.Profile = sketch8
pocket4.Length = 25
pocket4.Reversed = True

# Sketch on XY plane
sketch9 = body.newObject("Sketcher::SketchObject", "Sketch008")
sketch9.AttachmentSupport = (doc.getObject("XY_Plane"), [""])
sketch9.MapMode = "FlatFace"
sketch9.AttachmentOffset = App.Placement(V(0, 0, -25), App.Rotation())
sketch9.addGeometry([
    Part.Circle(V(60, 67.5, 0), V(0, 0, 1), 6),  # 0
    Part.Circle(V(60, 67.5, 0), V(0, 0, 1), 4),  # 1
    Part.Circle(V(-60, 67.5, 0), V(0, 0, 1), 6),  # 2
    Part.Circle(V(-60, 67.5, 0), V(0, 0, 1), 4),  # 3
    Part.Circle(V(-60, -67.5, 0), V(0, 0, 1), 6),  # 4
    Part.Circle(V(-60, -67.5, 0), V(0, 0, 1), 4),  # 5
    Part.Circle(V(60, -67.5, 0), V(0, 0, 1), 6),  # 6
    Part.Circle(V(60, -67.5, 0), V(0, 0, 1), 4),  # 7
], False)
sketch9.addConstraint([
    Sketcher.Constraint("Coincident", 1, 3, 0, 3),
    Sketcher.Constraint("Coincident", 3, 3, 2, 3),
    Sketcher.Constraint("Coincident", 5, 3, 4, 3),
    Sketcher.Constraint("Coincident", 7, 3, 6, 3),
    Sketcher.Constraint("Equal", 0, 2),
    Sketcher.Constraint("Equal", 1, 3),
    Sketcher.Constraint("Equal", 2, 4),
    Sketcher.Constraint("Equal", 3, 5),
    Sketcher.Constraint("Equal", 4, 6),
    Sketcher.Constraint("Equal", 5, 7),
    Sketcher.Constraint("Symmetric", 0, 3, 4, 3, -1, 1),
    Sketcher.Constraint("Symmetric", 2, 3, 6, 3, -1, 1),
    Sketcher.Constraint("Symmetric", 0, 3, 2, 3, -2),
    Sketcher.Constraint("Diameter", 0, 12.0),
    Sketcher.Constraint("Diameter", 1, 8.0),
    Sketcher.Constraint("DistanceX", -1, 1, 0, 3, 60.0),
    Sketcher.Constraint("DistanceY", 4, 3, 2, 3, 135.0),
])
pocket5 = body.newObject("PartDesign::Pocket", "Pocket004")
pocket5.Profile = sketch9
pocket5.Length = 6
pocket5.Reversed = True

# Sketch on XY plane
sketch10 = body.newObject("Sketcher::SketchObject", "Sketch009")
sketch10.AttachmentSupport = (doc.getObject("XY_Plane"), [""])
sketch10.MapMode = "FlatFace"
sketch10.AttachmentOffset = App.Placement(V(0, 0, -9), App.Rotation())
sketch10.addGeometry([
    Part.LineSegment(V(11, -13.5, 0), V(11, -17.5, 0)),  # 0
    Part.ArcOfCircle(Part.Circle(V(16.8, 0, 0), V(0, 0, 1), 18.5), math.radians(-172), math.radians(-108)),  # 1
    Part.LineSegment(V(-1.5, -2.5, 0), V(14, -2.5, 0)),  # 2
    Part.ArcOfCircle(Part.Circle(V(14, -5.5, 0), V(0, 0, 1), 3), math.radians(0), math.radians(90)),  # 3
    Part.LineSegment(V(17, -5.5, 0), V(17, -7.5, 0)),  # 4
    Part.ArcOfCircle(Part.Circle(V(14, -7.5, 0), V(0, 0, 1), 3), math.radians(-90), math.radians(0)),  # 5
    Part.ArcOfCircle(Part.Circle(V(14, -13.5, 0), V(0, 0, 1), 3), math.radians(90), math.radians(156)),  # 6
    Part.ArcOfCircle(Part.Circle(V(14, -13.5, 0), V(0, 0, 1), 3), math.radians(156), math.radians(180)),  # 7
    Part.ArcOfCircle(Part.Circle(V(16.8, 0, 0), V(0, 0, 1), 18.5), math.radians(108), math.radians(172)),  # 8
    Part.LineSegment(V(11, 17.5, 0), V(11, 13.5, 0)),  # 9
    Part.ArcOfCircle(Part.Circle(V(14, 13.5, 0), V(0, 0, 1), 3), math.radians(180), math.radians(204)),  # 10
    Part.ArcOfCircle(Part.Circle(V(14, 13.5, 0), V(0, 0, 1), 3), math.radians(-156), math.radians(-90)),  # 11
    Part.ArcOfCircle(Part.Circle(V(14, 7.5, 0), V(0, 0, 1), 3), math.radians(0), math.radians(90)),  # 12
    Part.LineSegment(V(17, 7.5, 0), V(17, 5.5, 0)),  # 13
    Part.ArcOfCircle(Part.Circle(V(14, 5.5, 0), V(0, 0, 1), 3), math.radians(-90), math.radians(0)),  # 14
    Part.LineSegment(V(14, 2.5, 0), V(-1.5, 2.5, 0)),  # 15
], False)
sketch10.addConstraint([
    Sketcher.Constraint("Coincident", 0, 2, 1, 2),
    Sketcher.Constraint("Coincident", 1, 1, 2, 1),
    Sketcher.Constraint("Tangent", 2, 2, 3, 2),
    Sketcher.Constraint("Tangent", 3, 1, 4, 1),
    Sketcher.Constraint("Tangent", 4, 2, 5, 2),
    Sketcher.Constraint("Tangent", 5, 1, 6, 1),
    Sketcher.Constraint("Tangent", 6, 2, 7, 1),
    Sketcher.Constraint("Tangent", 7, 2, 0, 1),
    Sketcher.Constraint("Coincident", 8, 1, 9, 1),
    Sketcher.Constraint("Tangent", 9, 2, 10, 1),
    Sketcher.Constraint("Tangent", 10, 2, 11, 1),
    Sketcher.Constraint("Tangent", 11, 2, 12, 2),
    Sketcher.Constraint("Tangent", 12, 1, 13, 1),
    Sketcher.Constraint("Tangent", 13, 2, 14, 2),
    Sketcher.Constraint("Tangent", 14, 1, 15, 1),
    Sketcher.Constraint("Coincident", 15, 2, 8, 2),
    Sketcher.Constraint("Vertical", 0),
    Sketcher.Constraint("Horizontal", 2),
    Sketcher.Constraint("Vertical", 4),
    Sketcher.Constraint("Vertical", 9),
    Sketcher.Constraint("Vertical", 13),
    Sketcher.Constraint("Horizontal", 15),
    Sketcher.Constraint("Coincident", 8, 3, 1, 3),
    Sketcher.Constraint("Equal", 3, 5),
    Sketcher.Constraint("Equal", 5, 6),
    Sketcher.Constraint("Equal", 6, 7),
    Sketcher.Constraint("Equal", 1, 8),
    Sketcher.Constraint("Equal", 7, 10),
    Sketcher.Constraint("Equal", 10, 11),
    Sketcher.Constraint("Equal", 11, 12),
    Sketcher.Constraint("Equal", 12, 14),
    Sketcher.Constraint("Symmetric", 6, 3, 10, 3, -1),
    Sketcher.Constraint("Symmetric", 3, 3, 14, 3, -1),
    Sketcher.Constraint("PointOnObject", 1, 3, -1),
    Sketcher.Constraint("Vertical", 5, 3, 6, 3),
    Sketcher.Constraint("Vertical", 6, 2, 10, 2),
    Sketcher.Constraint("Radius", 3, 3.0),
    Sketcher.Constraint("DistanceY", 4, 2, 4, 1, 2.0),
    Sketcher.Constraint("DistanceX", -1, 1, 3, 3, 14.0),
    Sketcher.Constraint("DistanceY", 3, 3, 10, 3, 19.0),
    Sketcher.Constraint("Radius", 1, 18.468279),
    Sketcher.Constraint("DistanceX", 2, 1, 2, 2, 15.541584),
    Sketcher.Constraint("DistanceX", 15, 2, 10, 2, 12.795229),
])
pocket6 = body.newObject("PartDesign::Pocket", "Pocket005")
pocket6.Profile = sketch10
pocket6.Length = 9
doc.recompute()

fillet = body.newObject("PartDesign::Fillet", "Fillet")
fillet.Base = (pocket6, edges_at(pocket6, [
    (-57, -23.703, -18),
    (-57, 23.703, -18),
    (25, 0, -5),
    (25, 16.527, -11.5),
    (25, -16.527, -11.5),
    (25, -27.887, -18),
    (35.225, 0, -18),
]))
fillet.Radius = 3
doc.recompute()

fillet2 = body.newObject("PartDesign::Fillet", "Fillet001")
fillet2.Base = (fillet, edges_at(fillet, [(0, -90, -25)]))
fillet2.Radius = 2
body2 = doc.addObject("PartDesign::Body", "Body001")

# Sketch on XY plane
sketch11 = body2.newObject("Sketcher::SketchObject", "Sketch010")
sketch11.AttachmentSupport = (doc.getObject("XY_Plane001"), [""])
sketch11.MapMode = "FlatFace"
sketch11.addGeometry([
    Part.LineSegment(V(-15, 108, 0), V(-33, 90, 0)),  # 0
    Part.LineSegment(V(-33, 90, 0), V(33, 90, 0)),  # 1
    Part.LineSegment(V(33, 90, 0), V(15, 108, 0)),  # 2
    Part.LineSegment(V(15, 108, 0), V(15, 120, 0)),  # 3
    Part.ArcOfCircle(Part.Circle(V(0, 120, 0), V(0, 0, 1), 15), math.radians(0), math.radians(180)),  # 4
    Part.LineSegment(V(-15, 120, 0), V(-15, 108, 0)),  # 5
    Part.Circle(V(0, 120, 0), V(0, 0, 1), 6),  # 6
], False)
sketch11.addConstraint([
    Sketcher.Constraint("Coincident", 0, 2, 1, 1),
    Sketcher.Constraint("Coincident", 1, 2, 2, 1),
    Sketcher.Constraint("Coincident", 2, 2, 3, 1),
    Sketcher.Constraint("Tangent", 3, 2, 4, 1),
    Sketcher.Constraint("Tangent", 4, 2, 5, 1),
    Sketcher.Constraint("Coincident", 5, 2, 0, 1),
    Sketcher.Constraint("Horizontal", 1),
    Sketcher.Constraint("Vertical", 3),
    Sketcher.Constraint("Vertical", 5),
    Sketcher.Constraint("Coincident", 6, 3, 4, 3),
    Sketcher.Constraint("Symmetric", 2, 2, 5, 2, -2),
    Sketcher.Constraint("Perpendicular", 0, 2),
    Sketcher.Constraint("Equal", 0, 2),
    Sketcher.Constraint("Diameter", 6, 12.0),
    Sketcher.Constraint("Radius", 4, 15.0),
    Sketcher.Constraint("DistanceX", 1, 1, 1, 2, 66.0),
    Sketcher.Constraint("DistanceY", 3, 1, 3, 2, 12.0),
    Sketcher.Constraint("DistanceY", -1, 1, 4, 3, 120.0),
])
pad5 = body2.newObject("PartDesign::Pad", "Pad004")
pad5.Profile = sketch11
pad5.Length = 25
body3 = doc.addObject("PartDesign::Body", "Body002")

# Sketch on XY plane
sketch12 = body3.newObject("Sketcher::SketchObject", "Sketch011")
sketch12.AttachmentSupport = (doc.getObject("XY_Plane002"), [""])
sketch12.MapMode = "FlatFace"
sketch12.addGeometry([
    Part.LineSegment(V(33, -90, 0), V(-33, -90, 0)),  # 0
    Part.LineSegment(V(-33, -90, 0), V(-19, -111, 0)),  # 1
    Part.LineSegment(V(-19, -111, 0), V(-19, -123, 0)),  # 2
    Part.ArcOfCircle(Part.Circle(V(0, -108, 0), V(0, 0, 1), 24), math.radians(-142), math.radians(-38)),  # 3
    Part.LineSegment(V(19, -123, 0), V(19, -111, 0)),  # 4
    Part.LineSegment(V(19, -111, 0), V(33, -90, 0)),  # 5
    Part.Circle(V(0, -108, 0), V(0, 0, 1), 6),  # 6
], False)
sketch12.addConstraint([
    Sketcher.Constraint("Coincident", 0, 2, 1, 1),
    Sketcher.Constraint("Coincident", 1, 2, 2, 1),
    Sketcher.Constraint("Coincident", 2, 2, 3, 1),
    Sketcher.Constraint("Coincident", 3, 2, 4, 1),
    Sketcher.Constraint("Coincident", 4, 2, 5, 1),
    Sketcher.Constraint("Coincident", 5, 2, 0, 1),
    Sketcher.Constraint("Horizontal", 0),
    Sketcher.Constraint("Vertical", 2),
    Sketcher.Constraint("Vertical", 4),
    Sketcher.Constraint("Coincident", 6, 3, 3, 3),
    Sketcher.Constraint("Symmetric", 2, 2, 3, 2, -2),
    Sketcher.Constraint("Horizontal", 1, 2, 4, 2),
    Sketcher.Constraint("Equal", 1, 5),
    Sketcher.Constraint("Diameter", 6, 12.0),
    Sketcher.Constraint("DistanceX", 0, 2, 0, 1, 66.0),
    Sketcher.Constraint("DistanceY", 2, 2, 2, 1, 12.0),
    Sketcher.Constraint("DistanceY", 0, 2, -1, 1, 90.0),
    Sketcher.Constraint("Radius", 3, 23.696212),
    Sketcher.Constraint("Distance", 1, 25.455844),
    Sketcher.Constraint("DistanceY", 3, 3, -1, 1, 108.478723),
])
pad6 = body3.newObject("PartDesign::Pad", "Pad005")
pad6.Profile = sketch12
pad6.Length = 25

doc.recompute()
